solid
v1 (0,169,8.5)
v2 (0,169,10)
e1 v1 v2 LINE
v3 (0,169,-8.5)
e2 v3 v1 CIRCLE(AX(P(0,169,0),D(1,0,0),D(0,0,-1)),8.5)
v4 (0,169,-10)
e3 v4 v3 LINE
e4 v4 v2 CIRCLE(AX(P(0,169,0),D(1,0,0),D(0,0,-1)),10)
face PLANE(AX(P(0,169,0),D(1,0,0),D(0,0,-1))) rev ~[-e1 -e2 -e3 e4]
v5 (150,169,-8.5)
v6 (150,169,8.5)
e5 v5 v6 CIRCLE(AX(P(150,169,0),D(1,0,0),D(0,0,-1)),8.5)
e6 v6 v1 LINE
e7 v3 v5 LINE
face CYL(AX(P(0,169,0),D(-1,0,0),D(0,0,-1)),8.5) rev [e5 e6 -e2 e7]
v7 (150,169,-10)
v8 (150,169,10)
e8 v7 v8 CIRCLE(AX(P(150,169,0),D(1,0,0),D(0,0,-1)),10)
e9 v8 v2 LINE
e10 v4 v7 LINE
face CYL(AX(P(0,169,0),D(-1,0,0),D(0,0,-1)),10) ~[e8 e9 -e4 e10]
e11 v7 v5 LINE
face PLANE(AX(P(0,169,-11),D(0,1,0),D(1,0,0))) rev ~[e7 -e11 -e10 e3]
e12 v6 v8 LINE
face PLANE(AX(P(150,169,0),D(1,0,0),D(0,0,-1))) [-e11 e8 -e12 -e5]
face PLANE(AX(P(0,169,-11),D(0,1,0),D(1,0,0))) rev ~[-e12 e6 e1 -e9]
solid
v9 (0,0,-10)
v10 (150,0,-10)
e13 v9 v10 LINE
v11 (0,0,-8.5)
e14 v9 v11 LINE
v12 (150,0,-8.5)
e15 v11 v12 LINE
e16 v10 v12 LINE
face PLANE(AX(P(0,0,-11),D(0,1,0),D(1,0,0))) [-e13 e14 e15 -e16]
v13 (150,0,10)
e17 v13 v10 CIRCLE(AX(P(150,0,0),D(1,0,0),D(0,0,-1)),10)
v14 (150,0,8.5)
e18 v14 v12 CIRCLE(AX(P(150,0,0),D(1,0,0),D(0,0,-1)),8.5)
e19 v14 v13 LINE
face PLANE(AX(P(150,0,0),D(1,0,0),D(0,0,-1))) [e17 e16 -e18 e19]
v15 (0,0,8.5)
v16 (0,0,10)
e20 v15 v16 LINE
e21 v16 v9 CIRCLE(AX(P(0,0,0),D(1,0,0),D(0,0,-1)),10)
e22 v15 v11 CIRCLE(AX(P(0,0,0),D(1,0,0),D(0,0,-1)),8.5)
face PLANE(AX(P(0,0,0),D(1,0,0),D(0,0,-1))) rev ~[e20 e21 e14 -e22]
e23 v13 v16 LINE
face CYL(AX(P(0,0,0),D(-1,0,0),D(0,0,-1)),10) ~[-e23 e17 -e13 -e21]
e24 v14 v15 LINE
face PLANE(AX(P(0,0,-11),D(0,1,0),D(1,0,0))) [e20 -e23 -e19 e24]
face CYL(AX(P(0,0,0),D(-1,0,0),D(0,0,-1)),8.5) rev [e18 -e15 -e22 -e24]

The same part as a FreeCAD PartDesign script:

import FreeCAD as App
import Part
import Sketcher
Q = App.Units.Quantity

doc = App.newDocument("Part")
params = doc.addObject("Spreadsheet::Sheet", "Params")
for row, (alias, value) in enumerate([
    ("sketch1_width", "150 mm"),
    ("sketch1_height", "169 mm"),
    ("pad1_length", "22 mm"),
    ("sketch2_diameter", "20 mm"),
    ("sketch2_diameter2", "17 mm"),
    ("pad2_length", "150 mm"),
    ("sketch3_diameter", "20 mm"),
    ("sketch3_diameter2", "17 mm"),
    ("pad3_length", "150 mm"),
], start=1):
    params.set(f"A{row}", alias)
    params.set(f"B{row}", "=" + value)
    params.setAlias(f"B{row}", alias)

body = doc.addObject("PartDesign::Body", "Body")

sketch1 = doc.addObject("Sketcher::SketchObject", "Sketch")
body.addObject(sketch1)
sketch1.AttachmentSupport = (doc.XY_Plane, [""])
sketch1.MapMode = "FlatFace"
sketch1.AttachmentOffset = App.Placement(App.Vector(0, 0, -11), App.Rotation())
sketch1.addGeometry([
    Part.LineSegment(App.Vector(0, 169, 0), App.Vector(0, 0, 0)),
    Part.LineSegment(App.Vector(0, 0, 0), App.Vector(150, 0, 0)),
    Part.LineSegment(App.Vector(150, 0, 0), App.Vector(150, 169, 0)),
    Part.LineSegment(App.Vector(150, 169, 0), App.Vector(0, 169, 0)),
], False)
sketch1.addConstraint([
    Sketcher.Constraint("Coincident", 0, 2, 1, 1),
    Sketcher.Constraint("Coincident", 1, 2, 2, 1),
    Sketcher.Constraint("Coincident", 2, 2, 3, 1),
    Sketcher.Constraint("Coincident", 3, 2, 0, 1),
    Sketcher.Constraint("Vertical", 0),
    Sketcher.Constraint("Horizontal", 1),
    Sketcher.Constraint("Vertical", 2),
    Sketcher.Constraint("Horizontal", 3),
    Sketcher.Constraint("Coincident", 0, 2, -1, 1),
    Sketcher.Constraint("DistanceX", 1, 1, 1, 2, Q("150 mm")),
    Sketcher.Constraint("DistanceY", 0, 2, 0, 1, Q("169 mm")),
])
sketch1.setExpression("Constraints[9]", "Params.sketch1_width")
sketch1.setExpression("Constraints[10]", "Params.sketch1_height")
pad1 = doc.addObject("PartDesign::Pad", "Pad")
body.addObject(pad1)
pad1.Profile = sketch1
pad1.setExpression("Length", "Params.pad1_length")
body2 = doc.addObject("PartDesign::Body", "Body001")

sketch2 = doc.addObject("Sketcher::SketchObject", "Sketch001")
body2.addObject(sketch2)
sketch2.AttachmentSupport = (doc.getObject("YZ_Plane001"), [""])
sketch2.MapMode = "FlatFace"
sketch2.addGeometry([
    Part.Circle(App.Vector(169, 0, 0), App.Vector(0, 0, 1), 10),
    Part.Circle(App.Vector(169, 0, 0), App.Vector(0, 0, 1), 8.5),
], False)
sketch2.addConstraint([
    Sketcher.Constraint("Coincident", 1, 3, 0, 3),
    Sketcher.Constraint("PointOnObject", 0, 3, -1),
    Sketcher.Constraint("Diameter", 0, Q("20 mm")),
    Sketcher.Constraint("Diameter", 1, Q("17 mm")),
    Sketcher.Constraint("DistanceX", -1, 1, 0, 3, Q("169 mm")),
])
sketch2.setExpression("Constraints[2]", "Params.sketch2_diameter")
sketch2.setExpression("Constraints[3]", "Params.sketch2_diameter2")
pad2 = doc.addObject("PartDesign::Pad", "Pad001")
body2.addObject(pad2)
pad2.Profile = sketch2
pad2.setExpression("Length", "Params.pad2_length")
body3 = doc.addObject("PartDesign::Body", "Body002")
body3.AllowCompound = True

sketch3 = doc.addObject("Sketcher::SketchObject", "Sketch002")
body3.addObject(sketch3)
sketch3.AttachmentSupport = (doc.getObject("YZ_Plane002"), [""])
sketch3.MapMode = "FlatFace"
sketch3.addGeometry([
    Part.Circle(App.Vector(0, 0, 0), App.Vector(0, 0, 1), 10),
    Part.Circle(App.Vector(0, 0, 0), App.Vector(0, 0, 1), 8.5),
], False)
sketch3.addConstraint([
    Sketcher.Constraint("Coincident", 0, 3, -1, 1),
    Sketcher.Constraint("Coincident", 1, 3, -1, 1),
    Sketcher.Constraint("Diameter", 0, Q("20 mm")),
    Sketcher.Constraint("Diameter", 1, Q("17 mm")),
])
sketch3.setExpression("Constraints[2]", "Params.sketch3_diameter")
sketch3.setExpression("Constraints[3]", "Params.sketch3_diameter2")
pad3 = doc.addObject("PartDesign::Pad", "Pad002")
body3.addObject(pad3)
pad3.Profile = sketch3
pad3.setExpression("Length", "Params.pad3_length")
doc.recompute()

boolean = doc.addObject("PartDesign::Boolean", "Boolean")
body3.addObject(boolean)
boolean.Type = "Fuse"
boolean.addObjects([body2])
doc.recompute()

boolean2 = doc.addObject("PartDesign::Boolean", "Boolean001")
body3.addObject(boolean2)
boolean2.Type = "Cut"
boolean2.addObjects([body])

doc.recompute()
